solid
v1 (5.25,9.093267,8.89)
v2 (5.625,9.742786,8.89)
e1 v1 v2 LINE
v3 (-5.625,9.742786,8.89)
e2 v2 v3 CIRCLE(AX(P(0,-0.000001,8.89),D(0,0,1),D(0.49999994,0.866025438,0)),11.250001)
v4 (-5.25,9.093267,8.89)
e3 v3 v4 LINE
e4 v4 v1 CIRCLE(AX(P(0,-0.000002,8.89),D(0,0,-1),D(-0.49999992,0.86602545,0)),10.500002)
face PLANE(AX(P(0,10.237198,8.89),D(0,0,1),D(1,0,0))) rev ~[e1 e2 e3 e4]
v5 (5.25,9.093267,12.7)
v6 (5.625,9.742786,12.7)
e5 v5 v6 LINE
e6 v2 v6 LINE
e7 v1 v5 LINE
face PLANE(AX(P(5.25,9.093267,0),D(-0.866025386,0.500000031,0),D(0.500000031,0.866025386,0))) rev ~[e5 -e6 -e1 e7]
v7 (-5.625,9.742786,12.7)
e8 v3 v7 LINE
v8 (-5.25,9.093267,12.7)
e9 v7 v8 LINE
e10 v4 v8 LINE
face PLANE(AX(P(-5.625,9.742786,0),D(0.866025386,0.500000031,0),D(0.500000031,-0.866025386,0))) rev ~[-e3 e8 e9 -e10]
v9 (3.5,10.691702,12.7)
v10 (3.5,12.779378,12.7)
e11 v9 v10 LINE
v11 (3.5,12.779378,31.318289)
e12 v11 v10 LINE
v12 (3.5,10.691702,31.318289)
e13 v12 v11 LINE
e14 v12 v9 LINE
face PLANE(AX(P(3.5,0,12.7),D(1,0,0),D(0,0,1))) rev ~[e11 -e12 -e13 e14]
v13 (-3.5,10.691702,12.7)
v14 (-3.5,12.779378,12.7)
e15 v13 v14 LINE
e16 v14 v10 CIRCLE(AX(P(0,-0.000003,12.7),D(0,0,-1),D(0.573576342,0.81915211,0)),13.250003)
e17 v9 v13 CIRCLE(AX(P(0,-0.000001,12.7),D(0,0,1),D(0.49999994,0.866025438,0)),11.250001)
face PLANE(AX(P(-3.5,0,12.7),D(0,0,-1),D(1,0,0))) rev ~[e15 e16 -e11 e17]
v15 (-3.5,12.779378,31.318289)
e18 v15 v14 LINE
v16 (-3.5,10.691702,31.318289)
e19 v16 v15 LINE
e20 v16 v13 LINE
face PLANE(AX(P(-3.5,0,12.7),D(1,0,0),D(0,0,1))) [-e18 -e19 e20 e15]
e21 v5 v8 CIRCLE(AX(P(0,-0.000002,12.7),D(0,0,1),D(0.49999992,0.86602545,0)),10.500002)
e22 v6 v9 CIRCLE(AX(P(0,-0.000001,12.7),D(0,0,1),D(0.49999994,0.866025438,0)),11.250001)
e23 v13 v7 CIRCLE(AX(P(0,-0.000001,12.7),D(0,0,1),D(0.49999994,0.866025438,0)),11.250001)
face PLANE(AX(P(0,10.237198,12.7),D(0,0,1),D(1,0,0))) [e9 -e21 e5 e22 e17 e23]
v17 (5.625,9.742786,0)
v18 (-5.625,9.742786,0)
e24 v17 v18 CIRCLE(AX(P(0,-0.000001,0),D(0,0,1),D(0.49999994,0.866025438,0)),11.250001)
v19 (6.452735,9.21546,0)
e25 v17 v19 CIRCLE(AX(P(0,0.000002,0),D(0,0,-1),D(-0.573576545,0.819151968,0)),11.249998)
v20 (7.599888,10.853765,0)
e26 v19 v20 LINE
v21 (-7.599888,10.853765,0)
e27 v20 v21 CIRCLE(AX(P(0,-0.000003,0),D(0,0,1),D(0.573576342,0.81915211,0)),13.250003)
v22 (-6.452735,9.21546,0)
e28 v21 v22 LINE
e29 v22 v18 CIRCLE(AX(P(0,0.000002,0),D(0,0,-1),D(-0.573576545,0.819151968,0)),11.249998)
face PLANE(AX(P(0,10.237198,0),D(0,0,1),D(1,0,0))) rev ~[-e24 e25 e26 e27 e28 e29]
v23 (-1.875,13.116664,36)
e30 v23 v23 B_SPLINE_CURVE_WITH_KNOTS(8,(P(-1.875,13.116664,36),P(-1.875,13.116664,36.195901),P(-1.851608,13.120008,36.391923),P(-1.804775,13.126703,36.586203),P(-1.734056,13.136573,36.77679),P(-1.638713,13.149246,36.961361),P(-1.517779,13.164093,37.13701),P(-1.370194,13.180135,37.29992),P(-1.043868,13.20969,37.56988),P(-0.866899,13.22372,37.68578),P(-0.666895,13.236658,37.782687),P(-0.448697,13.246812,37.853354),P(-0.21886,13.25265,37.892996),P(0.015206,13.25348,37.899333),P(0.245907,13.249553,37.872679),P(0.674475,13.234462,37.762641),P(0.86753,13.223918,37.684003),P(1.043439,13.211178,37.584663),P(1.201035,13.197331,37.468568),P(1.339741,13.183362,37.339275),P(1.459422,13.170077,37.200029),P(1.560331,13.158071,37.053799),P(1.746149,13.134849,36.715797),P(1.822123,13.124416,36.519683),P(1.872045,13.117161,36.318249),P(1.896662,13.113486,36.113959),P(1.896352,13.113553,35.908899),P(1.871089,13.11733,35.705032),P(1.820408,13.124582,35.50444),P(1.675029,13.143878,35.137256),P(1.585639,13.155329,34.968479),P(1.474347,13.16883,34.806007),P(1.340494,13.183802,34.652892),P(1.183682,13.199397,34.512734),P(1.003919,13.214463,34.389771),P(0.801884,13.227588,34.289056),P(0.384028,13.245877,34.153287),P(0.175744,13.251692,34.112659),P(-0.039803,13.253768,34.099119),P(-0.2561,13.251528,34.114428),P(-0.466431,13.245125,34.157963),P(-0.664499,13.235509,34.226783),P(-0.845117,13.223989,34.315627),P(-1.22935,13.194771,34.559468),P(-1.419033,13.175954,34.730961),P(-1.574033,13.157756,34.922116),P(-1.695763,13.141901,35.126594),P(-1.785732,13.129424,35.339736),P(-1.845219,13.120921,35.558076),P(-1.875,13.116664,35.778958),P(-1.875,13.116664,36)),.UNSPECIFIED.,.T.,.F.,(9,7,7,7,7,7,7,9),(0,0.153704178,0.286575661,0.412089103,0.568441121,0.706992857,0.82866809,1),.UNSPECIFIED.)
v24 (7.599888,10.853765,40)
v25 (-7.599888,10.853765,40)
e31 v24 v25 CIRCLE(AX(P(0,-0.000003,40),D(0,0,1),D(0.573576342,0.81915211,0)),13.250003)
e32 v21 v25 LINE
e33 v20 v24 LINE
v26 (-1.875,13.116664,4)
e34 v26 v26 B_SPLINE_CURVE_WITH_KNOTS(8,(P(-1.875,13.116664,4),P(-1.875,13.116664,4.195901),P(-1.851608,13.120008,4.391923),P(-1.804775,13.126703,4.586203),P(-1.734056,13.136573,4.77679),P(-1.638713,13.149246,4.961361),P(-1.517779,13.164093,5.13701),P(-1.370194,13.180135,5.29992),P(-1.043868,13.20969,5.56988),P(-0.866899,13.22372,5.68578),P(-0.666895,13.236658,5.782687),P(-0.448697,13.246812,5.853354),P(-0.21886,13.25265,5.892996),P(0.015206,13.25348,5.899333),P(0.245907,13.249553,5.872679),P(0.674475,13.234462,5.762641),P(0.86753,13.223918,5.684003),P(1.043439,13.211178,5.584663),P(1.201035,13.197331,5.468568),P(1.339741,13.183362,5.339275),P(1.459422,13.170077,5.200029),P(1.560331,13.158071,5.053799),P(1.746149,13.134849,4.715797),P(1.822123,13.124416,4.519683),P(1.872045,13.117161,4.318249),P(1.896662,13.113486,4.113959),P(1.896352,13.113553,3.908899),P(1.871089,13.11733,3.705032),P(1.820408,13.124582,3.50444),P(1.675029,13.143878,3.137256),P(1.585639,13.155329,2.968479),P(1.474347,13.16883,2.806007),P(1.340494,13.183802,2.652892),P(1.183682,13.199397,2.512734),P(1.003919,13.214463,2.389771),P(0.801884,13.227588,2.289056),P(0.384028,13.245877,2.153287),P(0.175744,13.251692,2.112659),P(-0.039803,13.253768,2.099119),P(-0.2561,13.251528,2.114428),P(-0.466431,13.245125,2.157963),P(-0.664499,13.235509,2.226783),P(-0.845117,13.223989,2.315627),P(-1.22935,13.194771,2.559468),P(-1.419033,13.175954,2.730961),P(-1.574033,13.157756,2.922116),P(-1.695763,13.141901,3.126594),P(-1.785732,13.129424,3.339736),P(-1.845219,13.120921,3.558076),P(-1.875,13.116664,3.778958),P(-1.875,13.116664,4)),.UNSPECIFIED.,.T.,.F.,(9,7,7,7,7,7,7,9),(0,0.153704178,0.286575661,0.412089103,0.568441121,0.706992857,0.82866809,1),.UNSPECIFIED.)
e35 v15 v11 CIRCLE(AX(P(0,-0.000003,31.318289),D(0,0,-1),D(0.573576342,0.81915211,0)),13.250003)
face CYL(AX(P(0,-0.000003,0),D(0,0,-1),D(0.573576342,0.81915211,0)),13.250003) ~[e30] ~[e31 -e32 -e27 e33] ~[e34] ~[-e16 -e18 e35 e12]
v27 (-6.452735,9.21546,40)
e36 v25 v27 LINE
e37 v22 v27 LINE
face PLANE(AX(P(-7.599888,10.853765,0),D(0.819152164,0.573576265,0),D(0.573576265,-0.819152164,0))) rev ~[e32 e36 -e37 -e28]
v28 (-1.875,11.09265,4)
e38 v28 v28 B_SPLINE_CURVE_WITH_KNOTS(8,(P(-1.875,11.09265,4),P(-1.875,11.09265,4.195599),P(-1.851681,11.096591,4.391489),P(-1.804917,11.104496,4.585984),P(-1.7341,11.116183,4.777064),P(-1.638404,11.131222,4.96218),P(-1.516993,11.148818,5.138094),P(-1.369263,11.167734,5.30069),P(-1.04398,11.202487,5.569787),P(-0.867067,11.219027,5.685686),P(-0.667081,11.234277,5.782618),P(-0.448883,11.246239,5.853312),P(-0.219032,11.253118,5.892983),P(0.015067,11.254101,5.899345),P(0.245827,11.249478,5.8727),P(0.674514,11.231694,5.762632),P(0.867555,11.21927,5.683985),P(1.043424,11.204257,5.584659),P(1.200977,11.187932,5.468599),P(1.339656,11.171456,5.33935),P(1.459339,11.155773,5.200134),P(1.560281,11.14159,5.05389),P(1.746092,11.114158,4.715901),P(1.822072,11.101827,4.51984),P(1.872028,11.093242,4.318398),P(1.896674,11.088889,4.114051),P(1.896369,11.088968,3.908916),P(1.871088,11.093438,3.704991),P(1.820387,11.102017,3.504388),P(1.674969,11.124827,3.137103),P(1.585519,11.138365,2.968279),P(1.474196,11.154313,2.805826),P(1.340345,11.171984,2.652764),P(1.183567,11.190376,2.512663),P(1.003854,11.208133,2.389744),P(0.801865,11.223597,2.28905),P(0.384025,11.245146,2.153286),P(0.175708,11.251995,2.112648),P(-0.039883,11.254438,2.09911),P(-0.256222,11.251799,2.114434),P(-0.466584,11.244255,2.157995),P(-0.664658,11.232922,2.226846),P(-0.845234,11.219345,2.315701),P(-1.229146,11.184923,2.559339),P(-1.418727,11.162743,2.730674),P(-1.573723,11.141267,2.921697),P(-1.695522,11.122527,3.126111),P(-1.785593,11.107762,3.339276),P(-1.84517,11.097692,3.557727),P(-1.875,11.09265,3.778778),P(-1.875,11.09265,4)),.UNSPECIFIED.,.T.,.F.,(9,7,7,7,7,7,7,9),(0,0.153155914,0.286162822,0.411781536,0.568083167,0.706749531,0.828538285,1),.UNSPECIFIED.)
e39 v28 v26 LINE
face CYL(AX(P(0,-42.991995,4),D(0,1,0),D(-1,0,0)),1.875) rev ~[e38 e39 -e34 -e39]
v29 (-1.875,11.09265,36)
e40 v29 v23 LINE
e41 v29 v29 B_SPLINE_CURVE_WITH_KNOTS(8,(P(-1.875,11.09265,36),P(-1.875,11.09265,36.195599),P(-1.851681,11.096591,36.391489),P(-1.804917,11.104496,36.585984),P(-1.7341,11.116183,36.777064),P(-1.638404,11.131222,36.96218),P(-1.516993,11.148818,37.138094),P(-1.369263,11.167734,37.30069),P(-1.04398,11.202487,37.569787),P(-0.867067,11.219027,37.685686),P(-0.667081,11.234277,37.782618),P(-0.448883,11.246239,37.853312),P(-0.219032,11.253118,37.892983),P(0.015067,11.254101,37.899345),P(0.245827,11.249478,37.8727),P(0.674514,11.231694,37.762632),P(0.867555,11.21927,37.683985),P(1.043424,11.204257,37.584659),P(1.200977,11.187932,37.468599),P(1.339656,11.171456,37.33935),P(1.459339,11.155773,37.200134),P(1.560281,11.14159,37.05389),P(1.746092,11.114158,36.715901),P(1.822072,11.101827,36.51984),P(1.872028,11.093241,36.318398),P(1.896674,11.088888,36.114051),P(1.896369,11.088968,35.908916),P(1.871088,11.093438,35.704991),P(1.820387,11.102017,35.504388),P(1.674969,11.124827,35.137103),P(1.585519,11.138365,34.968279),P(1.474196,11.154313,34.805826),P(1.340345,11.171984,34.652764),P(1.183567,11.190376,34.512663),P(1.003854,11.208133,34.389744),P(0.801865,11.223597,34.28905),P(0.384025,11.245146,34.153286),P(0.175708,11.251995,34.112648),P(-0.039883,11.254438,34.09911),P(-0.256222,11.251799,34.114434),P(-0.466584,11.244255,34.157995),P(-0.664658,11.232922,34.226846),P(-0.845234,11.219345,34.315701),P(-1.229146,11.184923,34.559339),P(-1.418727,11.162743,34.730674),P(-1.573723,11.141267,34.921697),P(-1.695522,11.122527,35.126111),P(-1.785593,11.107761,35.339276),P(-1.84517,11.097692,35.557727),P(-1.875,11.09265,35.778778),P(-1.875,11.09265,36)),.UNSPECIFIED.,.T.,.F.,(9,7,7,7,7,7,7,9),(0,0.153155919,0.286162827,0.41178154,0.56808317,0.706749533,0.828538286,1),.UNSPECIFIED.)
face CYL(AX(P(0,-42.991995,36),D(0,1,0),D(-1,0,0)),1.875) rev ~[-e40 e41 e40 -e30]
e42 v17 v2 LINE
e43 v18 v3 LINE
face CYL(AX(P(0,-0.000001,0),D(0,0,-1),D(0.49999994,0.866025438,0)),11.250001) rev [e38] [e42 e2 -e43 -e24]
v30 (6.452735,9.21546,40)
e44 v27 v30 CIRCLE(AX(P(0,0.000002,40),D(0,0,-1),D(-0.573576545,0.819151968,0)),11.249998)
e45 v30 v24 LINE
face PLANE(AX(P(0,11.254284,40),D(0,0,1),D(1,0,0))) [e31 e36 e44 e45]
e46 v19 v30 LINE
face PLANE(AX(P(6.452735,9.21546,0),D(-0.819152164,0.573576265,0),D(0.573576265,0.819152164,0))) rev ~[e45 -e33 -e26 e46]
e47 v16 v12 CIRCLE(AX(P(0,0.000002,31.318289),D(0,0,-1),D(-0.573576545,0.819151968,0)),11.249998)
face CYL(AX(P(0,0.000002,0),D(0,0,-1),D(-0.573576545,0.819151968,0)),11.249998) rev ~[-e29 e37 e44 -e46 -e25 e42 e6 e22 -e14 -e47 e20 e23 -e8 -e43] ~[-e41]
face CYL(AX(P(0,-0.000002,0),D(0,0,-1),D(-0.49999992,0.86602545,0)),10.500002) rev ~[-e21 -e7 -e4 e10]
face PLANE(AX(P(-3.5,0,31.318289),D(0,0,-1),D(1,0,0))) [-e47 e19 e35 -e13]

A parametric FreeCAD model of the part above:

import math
import FreeCAD as App
import Part
import Sketcher
from FreeCAD import Vector
Q = App.Units.Quantity

doc = App.newDocument("Part")
body = doc.addObject("PartDesign::Body", "Body")

# Sketch on XY plane
sketch1 = doc.addObject("Sketcher::SketchObject", "Sketch")
body.addObject(sketch1)
sketch1.AttachmentSupport = (doc.XY_Plane, [""])
sketch1.MapMode = "FlatFace"
sketch1.addGeometry([
    Part.ArcOfCircle(Part.Circle(Vector(0, 0.000002, 0), Vector(0, 0, 1), 11.249998), math.radians(54.999992), math.radians(125.000008)),
    Part.LineSegment(Vector(6.452735, 9.21546, 0), Vector(7.599888, 10.853765, 0)),
    Part.ArcOfCircle(Part.Circle(Vector(0, -0.000003, 0), Vector(0, 0, 1), 13.250003), math.radians(55.000007), math.radians(124.999993)),
    Part.LineSegment(Vector(-7.599888, 10.853765, 0), Vector(-6.452735, 9.21546, 0)),
], False)
sketch1.addConstraint([
    Sketcher.Constraint("Coincident", 0, 1, 1, 1),
    Sketcher.Constraint("Coincident", 1, 2, 2, 1),
    Sketcher.Constraint("Coincident", 2, 2, 3, 1),
    Sketcher.Constraint("Coincident", 3, 2, 0, 2),
    Sketcher.Constraint("Coincident", 0, 3, -1, 1),
    Sketcher.Constraint("Coincident", 2, 3, -1, 1),
    Sketcher.Constraint("Horizontal", 1, 2, 2, 2),
    Sketcher.Constraint("Horizontal", 0, 1, 3, 2),
    Sketcher.Constraint("Angle", 1, Q("55.000012 deg")),
    Sketcher.Constraint("Radius", 0, Q("11.249998 mm")),
    Sketcher.Constraint("Distance", 1, Q("2.000001 mm")),
    Sketcher.Constraint("DistanceY", -1, 1, 0, 1, Q("9.21546 mm")),
])
pad1 = doc.addObject("PartDesign::Pad", "Pad")
body.addObject(pad1)
pad1.Profile = sketch1
pad1.Length = 40

# Sketch on XY plane
sketch2 = doc.addObject("Sketcher::SketchObject", "Sketch001")
body.addObject(sketch2)
sketch2.AttachmentSupport = (doc.XY_Plane, [""])
sketch2.MapMode = "FlatFace"
sketch2.addGeometry([
    Part.ArcOfCircle(Part.Circle(Vector(0, -0.000002, 0), Vector(0, 0, 1), 10.500002), math.radians(60.000005), math.radians(119.999995)),
    Part.LineSegment(Vector(5.25, 9.093267, 0), Vector(5.625, 9.742786, 0)),
    Part.ArcOfCircle(Part.Circle(Vector(0, -0.000001, 0), Vector(0, 0, 1), 11.250001), math.radians(60.000004), math.radians(119.999996)),
    Part.LineSegment(Vector(-5.625, 9.742786, 0), Vector(-5.25, 9.093267, 0)),
], False)
sketch2.addConstraint([
    Sketcher.Constraint("Coincident", 0, 1, 1, 1),
    Sketcher.Constraint("Coincident", 1, 2, 2, 1),
    Sketcher.Constraint("Coincident", 2, 2, 3, 1),
    Sketcher.Constraint("Coincident", 3, 2, 0, 2),
    Sketcher.Constraint("Coincident", 0, 3, -1, 1),
    Sketcher.Constraint("Coincident", 2, 3, -1, 1),
    Sketcher.Constraint("Horizontal", 1, 2, 2, 2),
    Sketcher.Constraint("Horizontal", 0, 1, 3, 2),
    Sketcher.Constraint("Radius", 0, Q("10.500002 mm")),
    Sketcher.Constraint("Angle", 1, Q("59.999998 deg")),
    Sketcher.Constraint("Radius", 2, Q("11.250001 mm")),
    Sketcher.Constraint("DistanceX", 3, 2, 0, 1, Q("10.5 mm")),
])
pad2 = doc.addObject("PartDesign::Pad", "Pad001")
body.addObject(pad2)
pad2.Profile = sketch2
pad2.Length = 12.7

# Sketch on XY plane
sketch3 = doc.addObject("Sketcher::SketchObject", "Sketch002")
body.addObject(sketch3)
sketch3.AttachmentSupport = (doc.XY_Plane, [""])
sketch3.MapMode = "FlatFace"
sketch3.addGeometry([
    Part.ArcOfCircle(Part.Circle(Vector(0, -0.000002, 0), Vector(0, 0, 1), 10.500002), math.radians(60.000005), math.radians(119.999995)),
    Part.LineSegment(Vector(5.25, 9.093267, 0), Vector(5.625, 9.742786, 0)),
    Part.ArcOfCircle(Part.Circle(Vector(0, -0.000001, 0), Vector(0, 0, 1), 11.250001), math.radians(60.000004), math.radians(119.999996)),
    Part.LineSegment(Vector(-5.625, 9.742786, 0), Vector(-5.25, 9.093267, 0)),
], False)
sketch3.addConstraint([
    Sketcher.Constraint("Coincident", 0, 1, 1, 1),
    Sketcher.Constraint("Coincident", 1, 2, 2, 1),
    Sketcher.Constraint("Coincident", 2, 2, 3, 1),
    Sketcher.Constraint("Coincident", 3, 2, 0, 2),
    Sketcher.Constraint("Coincident", 0, 3, -1, 1),
    Sketcher.Constraint("Coincident", 2, 3, -1, 1),
    Sketcher.Constraint("Horizontal", 1, 2, 2, 2),
    Sketcher.Constraint("Horizontal", 0, 1, 3, 2),
    Sketcher.Constraint("Radius", 0, Q("10.500002 mm")),
    Sketcher.Constraint("Angle", 1, Q("59.999998 deg")),
    Sketcher.Constraint("Radius", 2, Q("11.250001 mm")),
    Sketcher.Constraint("DistanceX", 3, 2, 0, 1, Q("10.5 mm")),
])
pocket1 = doc.addObject("PartDesign::Pocket", "Pocket")
body.addObject(pocket1)
pocket1.Profile = sketch3
pocket1.Length = 8.89
pocket1.Reversed = True

# Sketch on XZ plane
sketch4 = doc.addObject("Sketcher::SketchObject", "Sketch003")
body.addObject(sketch4)
sketch4.AttachmentSupport = (doc.XZ_Plane, [""])
sketch4.MapMode = "FlatFace"
sketch4.addGeometry([
    Part.Circle(Vector(0, 36, 0), Vector(0, 0, 1), 1.875),
    Part.Circle(Vector(0, 4, 0), Vector(0, 0, 1), 1.875),
], False)
sketch4.addConstraint([
    Sketcher.Constraint("Equal", 0, 1),
    Sketcher.Constraint("PointOnObject", 0, 3, -2),
    Sketcher.Constraint("PointOnObject", 1, 3, -2),
    Sketcher.Constraint("Diameter", 0, Q("3.75 mm")),
    Sketcher.Constraint("DistanceY", -1, 1, 0, 3, Q("36 mm")),
    Sketcher.Constraint("DistanceY", -1, 1, 1, 3, Q("4 mm")),
])
doc.recompute()
hole = doc.addObject("PartDesign::Hole", "Hole")
body.addObject(hole)
hole.Profile = sketch4
hole.ThreadType = "None"
hole.Diameter = 3.75
hole.DepthType = "ThroughAll"

# Sketch on XZ plane
sketch5 = doc.addObject("Sketcher::SketchObject", "Sketch004")
body.addObject(sketch5)
sketch5.AttachmentSupport = (doc.XZ_Plane, [""])
sketch5.MapMode = "FlatFace"
sketch5.addGeometry([
    Part.LineSegment(Vector(-3.5, 31.318289, 0), Vector(-3.5, 12.7, 0)),
    Part.LineSegment(Vector(-3.5, 12.7, 0), Vector(3.5, 12.7, 0)),
    Part.LineSegment(Vector(3.5, 12.7, 0), Vector(3.5, 31.318289, 0)),
    Part.LineSegment(Vector(3.5, 31.318289, 0), Vector(-3.5, 31.318289, 0)),
], False)
sketch5.addConstraint([
    Sketcher.Constraint("Coincident", 0, 2, 1, 1),
    Sketcher.Constraint("Coincident", 1, 2, 2, 1),
    Sketcher.Constraint("Coincident", 2, 2, 3, 1),
    Sketcher.Constraint("Coincident", 3, 2, 0, 1),
    Sketcher.Constraint("Vertical", 0),
    Sketcher.Constraint("Horizontal", 1),
    Sketcher.Constraint("Vertical", 2),
    Sketcher.Constraint("Horizontal", 3),
    Sketcher.Constraint("DistanceX", 1, 1, 1, 2, Q("7 mm")),
    Sketcher.Constraint("DistanceX", 0, 2, -1, 1, Q("3.5 mm")),
    Sketcher.Constraint("DistanceY", -1, 1, 0, 2, Q("12.7 mm")),
    Sketcher.Constraint("DistanceY", 0, 2, 0, 1, Q("18.618289 mm")),
])
pocket2 = doc.addObject("PartDesign::Pocket", "Pocket001")
body.addObject(pocket2)
pocket2.Profile = sketch5
pocket2.Length = 25.4

doc.recompute()
